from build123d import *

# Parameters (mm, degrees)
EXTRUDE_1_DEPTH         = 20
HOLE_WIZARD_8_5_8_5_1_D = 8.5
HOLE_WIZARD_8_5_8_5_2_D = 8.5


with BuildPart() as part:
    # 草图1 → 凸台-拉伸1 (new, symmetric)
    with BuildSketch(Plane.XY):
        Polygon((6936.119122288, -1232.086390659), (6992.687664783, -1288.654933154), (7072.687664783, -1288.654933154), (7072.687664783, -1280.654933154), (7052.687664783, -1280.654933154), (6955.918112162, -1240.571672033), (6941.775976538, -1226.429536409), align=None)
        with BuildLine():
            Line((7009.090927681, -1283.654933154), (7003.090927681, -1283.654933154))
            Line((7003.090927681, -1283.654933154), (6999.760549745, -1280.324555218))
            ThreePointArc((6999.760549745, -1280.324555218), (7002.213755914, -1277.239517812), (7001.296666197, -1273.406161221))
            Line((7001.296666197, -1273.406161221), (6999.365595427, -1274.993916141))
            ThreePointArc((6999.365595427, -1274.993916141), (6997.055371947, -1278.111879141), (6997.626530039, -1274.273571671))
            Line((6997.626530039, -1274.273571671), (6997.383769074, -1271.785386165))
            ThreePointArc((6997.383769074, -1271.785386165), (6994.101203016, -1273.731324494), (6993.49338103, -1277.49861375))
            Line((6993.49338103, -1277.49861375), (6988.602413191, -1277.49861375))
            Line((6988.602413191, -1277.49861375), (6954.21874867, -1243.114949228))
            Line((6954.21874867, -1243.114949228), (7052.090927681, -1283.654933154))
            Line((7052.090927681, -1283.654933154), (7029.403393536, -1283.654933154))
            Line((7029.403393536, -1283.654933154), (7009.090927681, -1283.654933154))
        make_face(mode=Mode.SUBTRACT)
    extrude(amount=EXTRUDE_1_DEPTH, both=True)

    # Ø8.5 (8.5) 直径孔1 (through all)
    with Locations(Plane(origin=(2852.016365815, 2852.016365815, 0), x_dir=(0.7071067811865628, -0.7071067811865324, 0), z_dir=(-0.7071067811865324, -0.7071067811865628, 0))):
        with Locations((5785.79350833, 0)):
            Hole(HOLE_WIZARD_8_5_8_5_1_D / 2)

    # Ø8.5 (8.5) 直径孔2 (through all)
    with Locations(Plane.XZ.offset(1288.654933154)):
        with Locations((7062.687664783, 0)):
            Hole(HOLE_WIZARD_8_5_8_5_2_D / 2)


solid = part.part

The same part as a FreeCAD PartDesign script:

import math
import FreeCAD as App
import Part
import Sketcher
from FreeCAD import Vector
Q = App.Units.Quantity

doc = App.newDocument("Part")
body = doc.addObject("PartDesign::Body", "Body")

# Sketch on XY plane
sketch1 = body.newObject("Sketcher::SketchObject", "Sketch")
sketch1.AttachmentSupport = (doc.getObject("XY_Plane"), [""])
sketch1.MapMode = "FlatFace"
sketch1.addGeometry([
    Part.LineSegment(Vector(6936.1, -1232.1, 0), Vector(6992.7, -1288.7, 0)),  # 0
    Part.LineSegment(Vector(6992.7, -1288.7, 0), Vector(7072.7, -1288.7, 0)),  # 1
    Part.LineSegment(Vector(7072.7, -1288.7, 0), Vector(7072.7, -1280.7, 0)),  # 2
    Part.LineSegment(Vector(7072.7, -1280.7, 0), Vector(7052.7, -1280.7, 0)),  # 3
    Part.LineSegment(Vector(7052.7, -1280.7, 0), Vector(6955.9, -1240.6, 0)),  # 4
    Part.LineSegment(Vector(6955.9, -1240.6, 0), Vector(6941.8, -1226.4, 0)),  # 5
    Part.LineSegment(Vector(6941.8, -1226.4, 0), Vector(6936.1, -1232.1, 0)),  # 6
    Part.LineSegment(Vector(7052.1, -1283.7, 0), Vector(7003.1, -1283.7, 0)),  # 7
    Part.LineSegment(Vector(7003.1, -1283.7, 0), Vector(6999.8, -1280.3, 0)),  # 8
    Part.ArcOfCircle(Part.Circle(Vector(6997.8, -1276.3, 0), Vector(0, 0, 1), 4.5), math.radians(-64), math.radians(39)),  # 9
    Part.LineSegment(Vector(7001.3, -1273.4, 0), Vector(6999.4, -1275, 0)),  # 10
    Part.ArcOfCircle(Part.Circle(Vector(6997.8, -1276.3, 0), Vector(0, 0, 1), 2), math.radians(96), math.radians(399)),  # 11
    Part.LineSegment(Vector(6997.6, -1274.3, 0), Vector(6997.4, -1271.8, 0)),  # 12
    Part.ArcOfCircle(Part.Circle(Vector(6997.8, -1276.3, 0), Vector(0, 0, 1), 4.5), math.radians(96), math.radians(196)),  # 13
    Part.LineSegment(Vector(6993.5, -1277.5, 0), Vector(6988.6, -1277.5, 0)),  # 14
    Part.LineSegment(Vector(6988.6, -1277.5, 0), Vector(6954.2, -1243.1, 0)),  # 15
    Part.LineSegment(Vector(6954.2, -1243.1, 0), Vector(7052.1, -1283.7, 0)),  # 16
], False)
sketch1.addConstraint([
    Sketcher.Constraint("Coincident", 0, 2, 1, 1),
    Sketcher.Constraint("Coincident", 1, 2, 2, 1),
    Sketcher.Constraint("Coincident", 2, 2, 3, 1),
    Sketcher.Constraint("Coincident", 3, 2, 4, 1),
    Sketcher.Constraint("Coincident", 4, 2, 5, 1),
    Sketcher.Constraint("Coincident", 5, 2, 6, 1),
    Sketcher.Constraint("Coincident", 6, 2, 0, 1),
    Sketcher.Constraint("Coincident", 7, 2, 8, 1),
    Sketcher.Constraint("Coincident", 8, 2, 9, 1),
    Sketcher.Constraint("Coincident", 9, 2, 10, 1),
    Sketcher.Constraint("Coincident", 10, 2, 11, 2),
    Sketcher.Constraint("Coincident", 11, 1, 12, 1),
    Sketcher.Constraint("Coincident", 12, 2, 13, 1),
    Sketcher.Constraint("Coincident", 13, 2, 14, 1),
    Sketcher.Constraint("Coincident", 14, 2, 15, 1),
    Sketcher.Constraint("Coincident", 15, 2, 16, 1),
    Sketcher.Constraint("Coincident", 16, 2, 7, 1),
    Sketcher.Constraint("Horizontal", 1),
    Sketcher.Constraint("Vertical", 2),
    Sketcher.Constraint("Horizontal", 3),
    Sketcher.Constraint("Horizontal", 7),
    Sketcher.Constraint("Horizontal", 14),
    Sketcher.Constraint("Coincident", 11, 3, 9, 3),
    Sketcher.Constraint("Coincident", 13, 3, 9, 3),
    Sketcher.Constraint("Equal", 9, 13),
    Sketcher.Constraint("Parallel", 0, 5),
    Sketcher.Constraint("Perpendicular", 5, 6),
    Sketcher.Constraint("Perpendicular", 6, 8),
    Sketcher.Constraint("Parallel", 8, 15),
    Sketcher.Constraint("Parallel", 4, 16),
    Sketcher.Constraint("Radius", 11, Q("2 mm")),
    Sketcher.Constraint("Radius", 9, Q("4.5 mm")),
    Sketcher.Constraint("DistanceX", 1, 1, 1, 2, Q("80 mm")),
    Sketcher.Constraint("DistanceX", 3, 2, 3, 1, Q("20 mm")),
    Sketcher.Constraint("DistanceX", 7, 2, 7, 1, Q("49 mm")),
    Sketcher.Constraint("DistanceY", 2, 1, 2, 2, Q("8 mm")),
    Sketcher.Constraint("Angle", 0, Q("-45 deg")),
    Sketcher.Constraint("Distance", 0, Q("80 mm")),
    Sketcher.Constraint("Distance", 5, Q("20 mm")),
    Sketcher.Constraint("Distance", 6, Q("8 mm")),
    Sketcher.Constraint("DistanceY", 0, 2, 7, 2, Q("5 mm")),
    Sketcher.Constraint("DistanceX", 14, 2, 14, 1, Q("4.890968 mm")),
    Sketcher.Constraint("DistanceX", -1, 1, 9, 3, Q("6997.820739 mm")),
    Sketcher.Constraint("DistanceY", 9, 3, -1, 1, Q("1276.26412 mm")),
    Sketcher.Constraint("DistanceY", 6, 2, -1, 1, Q("1232.086391 mm")),
    Sketcher.Constraint("DistanceX", -1, 1, 8, 2, Q("6999.76055 mm")),
    Sketcher.Constraint("DistanceY", 9, 2, -1, 1, Q("1273.406161 mm")),
    Sketcher.Constraint("DistanceX", -1, 1, 11, 1, Q("6997.62653 mm")),
    Sketcher.Constraint("DistanceX", -1, 1, 12, 2, Q("6997.383769 mm")),
    Sketcher.Constraint("DistanceX", -1, 1, 13, 2, Q("6993.493381 mm")),
    Sketcher.Constraint("DistanceX", 10, 2, 9, 2, Q("1.931071 mm")),
    Sketcher.Constraint("DistanceX", -1, 1, 0, 2, Q("6992.687665 mm")),
])
pad1 = body.newObject("PartDesign::Pad", "Pad")
pad1.Profile = sketch1
pad1.Length = 40
pad1.Midplane = True

# Sketch on an angled plane
sketch2 = body.newObject("Sketcher::SketchObject", "Sketch001")
sketch2.Placement = App.Placement(Vector(2852.016366, 2852.016366, 0), App.Rotation(Vector(0.707106781, -0.707106781, 0), Vector(0, 0, 0.999999999), Vector(-0.707106781, -0.707106781, 0), "ZXY"))
sketch2.addGeometry(Part.Circle(Vector(5785.8, 0, 0), Vector(0, 0, 1), 4.2), False)
sketch2.addConstraint([
    Sketcher.Constraint("PointOnObject", 0, 3, -1),
    Sketcher.Constraint("Diameter", 0, Q("8.5 mm")),
    Sketcher.Constraint("DistanceX", -1, 1, 0, 3, Q("5785.793505 mm")),
])
doc.recompute()
hole = body.newObject("PartDesign::Hole", "Hole")
hole.Profile = sketch2
hole.ThreadType = "None"
hole.Diameter = 8.5
hole.DepthType = "ThroughAll"

# Sketch on XZ plane
sketch3 = body.newObject("Sketcher::SketchObject", "Sketch002")
sketch3.AttachmentSupport = (doc.getObject("XZ_Plane"), [""])
sketch3.MapMode = "FlatFace"
sketch3.AttachmentOffset = App.Placement(Vector(0, 0, 1288.654933), App.Rotation())
sketch3.addGeometry(Part.Circle(Vector(7062.7, 0, 0), Vector(0, 0, 1), 4.2), False)
sketch3.addConstraint([
    Sketcher.Constraint("PointOnObject", 0, 3, -1),
    Sketcher.Constraint("Diameter", 0, Q("8.5 mm")),
    Sketcher.Constraint("DistanceX", -1, 1, 0, 3, Q("7062.687665 mm")),
])
doc.recompute()
hole2 = body.newObject("PartDesign::Hole", "Hole001")
hole2.Profile = sketch3
hole2.ThreadType = "None"
hole2.Diameter = 8.5
hole2.DepthType = "ThroughAll"

doc.recompute()
